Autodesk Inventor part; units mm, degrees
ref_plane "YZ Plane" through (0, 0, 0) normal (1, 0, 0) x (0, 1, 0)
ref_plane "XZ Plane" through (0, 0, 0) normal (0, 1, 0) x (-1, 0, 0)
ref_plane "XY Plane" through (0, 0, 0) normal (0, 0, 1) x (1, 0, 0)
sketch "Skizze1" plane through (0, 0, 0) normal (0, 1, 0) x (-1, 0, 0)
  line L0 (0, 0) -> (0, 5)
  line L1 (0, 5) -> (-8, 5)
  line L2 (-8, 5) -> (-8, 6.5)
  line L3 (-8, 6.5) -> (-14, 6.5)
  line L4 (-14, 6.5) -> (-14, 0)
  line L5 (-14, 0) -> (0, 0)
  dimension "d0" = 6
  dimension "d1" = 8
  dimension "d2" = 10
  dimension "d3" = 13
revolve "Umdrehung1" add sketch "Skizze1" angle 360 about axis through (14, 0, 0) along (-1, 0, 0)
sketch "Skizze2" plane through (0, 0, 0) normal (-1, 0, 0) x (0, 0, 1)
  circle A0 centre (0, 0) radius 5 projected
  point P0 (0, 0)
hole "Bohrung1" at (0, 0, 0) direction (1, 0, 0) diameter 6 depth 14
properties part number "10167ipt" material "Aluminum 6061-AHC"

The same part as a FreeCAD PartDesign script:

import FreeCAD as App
import Part
import Sketcher
Q = App.Units.Quantity


def add_polygon(sketch, points):
    """Adds a closed chain of lines whose ends are joined by coincident constraints."""
    first, n = sketch.GeometryCount, len(points)
    for a, b in zip(points, points[1:] + points[:1]):
        sketch.addGeometry(Part.LineSegment(App.Vector(*a, 0), App.Vector(*b, 0)), False)
    for i in range(n):
        sketch.addConstraint(Sketcher.Constraint("Coincident", first + i, 2, first + (i + 1) % n, 1))

doc = App.newDocument("Part")
body = doc.addObject("PartDesign::Body", "Body")

sketch1 = body.newObject("Sketcher::SketchObject", "Sketch")
sketch1.AttachmentSupport = (doc.getObject("XZ_Plane"), [""])
sketch1.MapMode = "FlatFace"
add_polygon(sketch1, [(14, 0), (0, 0), (0, 5), (8, 5), (8, 6.5), (14, 6.5)])
sketch1.addConstraint(Sketcher.Constraint("Horizontal", 0))
sketch1.addConstraint(Sketcher.Constraint("Vertical", 1))
sketch1.addConstraint(Sketcher.Constraint("Horizontal", 2))
sketch1.addConstraint(Sketcher.Constraint("Vertical", 3))
sketch1.addConstraint(Sketcher.Constraint("Horizontal", 4))
sketch1.addConstraint(Sketcher.Constraint("Vertical", 5))
sketch1.addConstraint(Sketcher.Constraint("Coincident", 0, 2, -1, 1))
sketch1.addConstraint(Sketcher.Constraint("DistanceX", 2, 1, 2, 2, Q("8 mm")))
sketch1.addConstraint(Sketcher.Constraint("DistanceX", 4, 1, 4, 2, Q("6 mm")))
sketch1.addConstraint(Sketcher.Constraint("DistanceY", 1, 1, 1, 2, Q("5 mm")))
sketch1.addConstraint(Sketcher.Constraint("DistanceY", 3, 1, 3, 2, Q("1.5 mm")))
revolution = body.newObject("PartDesign::Revolution", "Revolution")
revolution.Profile = sketch1
revolution.ReferenceAxis = (sketch1, ["H_Axis"])
revolution.Angle = 360

sketch2 = body.newObject("Sketcher::SketchObject", "Sketch001")
sketch2.AttachmentSupport = (doc.getObject("YZ_Plane"), [""])
sketch2.MapMode = "FlatFace"
sketch2.addGeometry(Part.Circle(App.Vector(0, 0, 0), App.Vector(0, 0, 1), 3), False)
sketch2.addConstraint(Sketcher.Constraint("Coincident", 0, 3, -1, 1))
sketch2.addConstraint(Sketcher.Constraint("Diameter", 0, Q("6 mm")))
doc.recompute()
hole = body.newObject("PartDesign::Hole", "Hole")
hole.Profile = sketch2
hole.ThreadType = "None"
hole.Diameter = 6
hole.DepthType = "Dimension"
hole.Depth = 14
hole.DrillPoint = "Flat"
hole.Reversed = True

doc.recompute()
